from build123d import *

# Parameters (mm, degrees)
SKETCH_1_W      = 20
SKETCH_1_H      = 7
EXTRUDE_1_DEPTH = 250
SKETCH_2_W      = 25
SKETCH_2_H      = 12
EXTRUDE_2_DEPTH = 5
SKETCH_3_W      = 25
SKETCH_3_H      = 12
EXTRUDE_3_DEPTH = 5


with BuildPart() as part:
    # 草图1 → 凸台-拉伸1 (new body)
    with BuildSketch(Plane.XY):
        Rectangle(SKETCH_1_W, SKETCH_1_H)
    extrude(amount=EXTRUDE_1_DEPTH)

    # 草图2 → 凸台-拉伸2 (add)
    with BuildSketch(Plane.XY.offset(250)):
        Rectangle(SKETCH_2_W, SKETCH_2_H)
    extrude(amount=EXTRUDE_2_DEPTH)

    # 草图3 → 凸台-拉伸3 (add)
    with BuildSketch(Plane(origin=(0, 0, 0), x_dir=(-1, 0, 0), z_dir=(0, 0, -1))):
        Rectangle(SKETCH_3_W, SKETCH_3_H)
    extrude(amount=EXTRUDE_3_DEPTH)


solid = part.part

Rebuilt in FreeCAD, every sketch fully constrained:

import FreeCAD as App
import Part
import Sketcher

doc = App.newDocument("Part")
body = doc.addObject("PartDesign::Body", "Body")

sketch1 = body.newObject("Sketcher::SketchObject", "Sketch")
sketch1.AttachmentSupport = (doc.getObject("XY_Plane"), [""])
sketch1.MapMode = "FlatFace"
sketch1.addGeometry([
    Part.LineSegment(App.Vector(-10, 4, 0), App.Vector(-10, -4, 0)),
    Part.LineSegment(App.Vector(-10, -4, 0), App.Vector(10, -4, 0)),
    Part.LineSegment(App.Vector(10, -4, 0), App.Vector(10, 4, 0)),
    Part.LineSegment(App.Vector(10, 4, 0), App.Vector(-10, 4, 0)),
], False)
sketch1.addConstraint([
    Sketcher.Constraint("Coincident", 0, 2, 1, 1),
    Sketcher.Constraint("Coincident", 1, 2, 2, 1),
    Sketcher.Constraint("Coincident", 2, 2, 3, 1),
    Sketcher.Constraint("Coincident", 3, 2, 0, 1),
    Sketcher.Constraint("Vertical", 0),
    Sketcher.Constraint("Horizontal", 1),
    Sketcher.Constraint("Vertical", 2),
    Sketcher.Constraint("Horizontal", 3),
    Sketcher.Constraint("Symmetric", 0, 2, 2, 2, -1, 1),
    Sketcher.Constraint("DistanceX", 1, 1, 1, 2, 20.0),
    Sketcher.Constraint("DistanceY", 0, 2, 0, 1, 7.0),
])
pad1 = body.newObject("PartDesign::Pad", "Pad")
pad1.Profile = sketch1
pad1.Length = 250

sketch2 = body.newObject("Sketcher::SketchObject", "Sketch001")
sketch2.AttachmentSupport = (doc.getObject("XY_Plane"), [""])
sketch2.MapMode = "FlatFace"
sketch2.AttachmentOffset = App.Placement(App.Vector(0, 0, 250), App.Rotation())
sketch2.addGeometry([
    Part.LineSegment(App.Vector(-12, 6, 0), App.Vector(-12, -6, 0)),
    Part.LineSegment(App.Vector(-12, -6, 0), App.Vector(12, -6, 0)),
    Part.LineSegment(App.Vector(12, -6, 0), App.Vector(12, 6, 0)),
    Part.LineSegment(App.Vector(12, 6, 0), App.Vector(-12, 6, 0)),
], False)
sketch2.addConstraint([
    Sketcher.Constraint("Coincident", 0, 2, 1, 1),
    Sketcher.Constraint("Coincident", 1, 2, 2, 1),
    Sketcher.Constraint("Coincident", 2, 2, 3, 1),
    Sketcher.Constraint("Coincident", 3, 2, 0, 1),
    Sketcher.Constraint("Vertical", 0),
    Sketcher.Constraint("Horizontal", 1),
    Sketcher.Constraint("Vertical", 2),
    Sketcher.Constraint("Horizontal", 3),
    Sketcher.Constraint("Symmetric", 0, 2, 2, 2, -1, 1),
    Sketcher.Constraint("DistanceX", 1, 1, 1, 2, 25.0),
    Sketcher.Constraint("DistanceY", 0, 2, 0, 1, 12.0),
])
pad2 = body.newObject("PartDesign::Pad", "Pad001")
pad2.Profile = sketch2
pad2.Length = 5

sketch3 = body.newObject("Sketcher::SketchObject", "Sketch002")
sketch3.AttachmentSupport = (doc.getObject("XY_Plane"), [""])
sketch3.MapMode = "FlatFace"
sketch3.addGeometry([
    Part.LineSegment(App.Vector(12, 6, 0), App.Vector(12, -6, 0)),
    Part.LineSegment(App.Vector(12, -6, 0), App.Vector(-12, -6, 0)),
    Part.LineSegment(App.Vector(-12, -6, 0), App.Vector(-12, 6, 0)),
    Part.LineSegment(App.Vector(-12, 6, 0), App.Vector(12, 6, 0)),
], False)
sketch3.addConstraint([
    Sketcher.Constraint("Coincident", 0, 2, 1, 1),
    Sketcher.Constraint("Coincident", 1, 2, 2, 1),
    Sketcher.Constraint("Coincident", 2, 2, 3, 1),
    Sketcher.Constraint("Coincident", 3, 2, 0, 1),
    Sketcher.Constraint("Vertical", 0),
    Sketcher.Constraint("Horizontal", 1),
    Sketcher.Constraint("Vertical", 2),
    Sketcher.Constraint("Horizontal", 3),
    Sketcher.Constraint("Symmetric", 0, 2, 2, 2, -1, 1),
    Sketcher.Constraint("DistanceX", 1, 2, 1, 1, 25.0),
    Sketcher.Constraint("DistanceY", 0, 2, 0, 1, 12.0),
])
pad3 = body.newObject("PartDesign::Pad", "Pad002")
pad3.Profile = sketch3
pad3.Length = 5
pad3.Reversed = True

doc.recompute()
